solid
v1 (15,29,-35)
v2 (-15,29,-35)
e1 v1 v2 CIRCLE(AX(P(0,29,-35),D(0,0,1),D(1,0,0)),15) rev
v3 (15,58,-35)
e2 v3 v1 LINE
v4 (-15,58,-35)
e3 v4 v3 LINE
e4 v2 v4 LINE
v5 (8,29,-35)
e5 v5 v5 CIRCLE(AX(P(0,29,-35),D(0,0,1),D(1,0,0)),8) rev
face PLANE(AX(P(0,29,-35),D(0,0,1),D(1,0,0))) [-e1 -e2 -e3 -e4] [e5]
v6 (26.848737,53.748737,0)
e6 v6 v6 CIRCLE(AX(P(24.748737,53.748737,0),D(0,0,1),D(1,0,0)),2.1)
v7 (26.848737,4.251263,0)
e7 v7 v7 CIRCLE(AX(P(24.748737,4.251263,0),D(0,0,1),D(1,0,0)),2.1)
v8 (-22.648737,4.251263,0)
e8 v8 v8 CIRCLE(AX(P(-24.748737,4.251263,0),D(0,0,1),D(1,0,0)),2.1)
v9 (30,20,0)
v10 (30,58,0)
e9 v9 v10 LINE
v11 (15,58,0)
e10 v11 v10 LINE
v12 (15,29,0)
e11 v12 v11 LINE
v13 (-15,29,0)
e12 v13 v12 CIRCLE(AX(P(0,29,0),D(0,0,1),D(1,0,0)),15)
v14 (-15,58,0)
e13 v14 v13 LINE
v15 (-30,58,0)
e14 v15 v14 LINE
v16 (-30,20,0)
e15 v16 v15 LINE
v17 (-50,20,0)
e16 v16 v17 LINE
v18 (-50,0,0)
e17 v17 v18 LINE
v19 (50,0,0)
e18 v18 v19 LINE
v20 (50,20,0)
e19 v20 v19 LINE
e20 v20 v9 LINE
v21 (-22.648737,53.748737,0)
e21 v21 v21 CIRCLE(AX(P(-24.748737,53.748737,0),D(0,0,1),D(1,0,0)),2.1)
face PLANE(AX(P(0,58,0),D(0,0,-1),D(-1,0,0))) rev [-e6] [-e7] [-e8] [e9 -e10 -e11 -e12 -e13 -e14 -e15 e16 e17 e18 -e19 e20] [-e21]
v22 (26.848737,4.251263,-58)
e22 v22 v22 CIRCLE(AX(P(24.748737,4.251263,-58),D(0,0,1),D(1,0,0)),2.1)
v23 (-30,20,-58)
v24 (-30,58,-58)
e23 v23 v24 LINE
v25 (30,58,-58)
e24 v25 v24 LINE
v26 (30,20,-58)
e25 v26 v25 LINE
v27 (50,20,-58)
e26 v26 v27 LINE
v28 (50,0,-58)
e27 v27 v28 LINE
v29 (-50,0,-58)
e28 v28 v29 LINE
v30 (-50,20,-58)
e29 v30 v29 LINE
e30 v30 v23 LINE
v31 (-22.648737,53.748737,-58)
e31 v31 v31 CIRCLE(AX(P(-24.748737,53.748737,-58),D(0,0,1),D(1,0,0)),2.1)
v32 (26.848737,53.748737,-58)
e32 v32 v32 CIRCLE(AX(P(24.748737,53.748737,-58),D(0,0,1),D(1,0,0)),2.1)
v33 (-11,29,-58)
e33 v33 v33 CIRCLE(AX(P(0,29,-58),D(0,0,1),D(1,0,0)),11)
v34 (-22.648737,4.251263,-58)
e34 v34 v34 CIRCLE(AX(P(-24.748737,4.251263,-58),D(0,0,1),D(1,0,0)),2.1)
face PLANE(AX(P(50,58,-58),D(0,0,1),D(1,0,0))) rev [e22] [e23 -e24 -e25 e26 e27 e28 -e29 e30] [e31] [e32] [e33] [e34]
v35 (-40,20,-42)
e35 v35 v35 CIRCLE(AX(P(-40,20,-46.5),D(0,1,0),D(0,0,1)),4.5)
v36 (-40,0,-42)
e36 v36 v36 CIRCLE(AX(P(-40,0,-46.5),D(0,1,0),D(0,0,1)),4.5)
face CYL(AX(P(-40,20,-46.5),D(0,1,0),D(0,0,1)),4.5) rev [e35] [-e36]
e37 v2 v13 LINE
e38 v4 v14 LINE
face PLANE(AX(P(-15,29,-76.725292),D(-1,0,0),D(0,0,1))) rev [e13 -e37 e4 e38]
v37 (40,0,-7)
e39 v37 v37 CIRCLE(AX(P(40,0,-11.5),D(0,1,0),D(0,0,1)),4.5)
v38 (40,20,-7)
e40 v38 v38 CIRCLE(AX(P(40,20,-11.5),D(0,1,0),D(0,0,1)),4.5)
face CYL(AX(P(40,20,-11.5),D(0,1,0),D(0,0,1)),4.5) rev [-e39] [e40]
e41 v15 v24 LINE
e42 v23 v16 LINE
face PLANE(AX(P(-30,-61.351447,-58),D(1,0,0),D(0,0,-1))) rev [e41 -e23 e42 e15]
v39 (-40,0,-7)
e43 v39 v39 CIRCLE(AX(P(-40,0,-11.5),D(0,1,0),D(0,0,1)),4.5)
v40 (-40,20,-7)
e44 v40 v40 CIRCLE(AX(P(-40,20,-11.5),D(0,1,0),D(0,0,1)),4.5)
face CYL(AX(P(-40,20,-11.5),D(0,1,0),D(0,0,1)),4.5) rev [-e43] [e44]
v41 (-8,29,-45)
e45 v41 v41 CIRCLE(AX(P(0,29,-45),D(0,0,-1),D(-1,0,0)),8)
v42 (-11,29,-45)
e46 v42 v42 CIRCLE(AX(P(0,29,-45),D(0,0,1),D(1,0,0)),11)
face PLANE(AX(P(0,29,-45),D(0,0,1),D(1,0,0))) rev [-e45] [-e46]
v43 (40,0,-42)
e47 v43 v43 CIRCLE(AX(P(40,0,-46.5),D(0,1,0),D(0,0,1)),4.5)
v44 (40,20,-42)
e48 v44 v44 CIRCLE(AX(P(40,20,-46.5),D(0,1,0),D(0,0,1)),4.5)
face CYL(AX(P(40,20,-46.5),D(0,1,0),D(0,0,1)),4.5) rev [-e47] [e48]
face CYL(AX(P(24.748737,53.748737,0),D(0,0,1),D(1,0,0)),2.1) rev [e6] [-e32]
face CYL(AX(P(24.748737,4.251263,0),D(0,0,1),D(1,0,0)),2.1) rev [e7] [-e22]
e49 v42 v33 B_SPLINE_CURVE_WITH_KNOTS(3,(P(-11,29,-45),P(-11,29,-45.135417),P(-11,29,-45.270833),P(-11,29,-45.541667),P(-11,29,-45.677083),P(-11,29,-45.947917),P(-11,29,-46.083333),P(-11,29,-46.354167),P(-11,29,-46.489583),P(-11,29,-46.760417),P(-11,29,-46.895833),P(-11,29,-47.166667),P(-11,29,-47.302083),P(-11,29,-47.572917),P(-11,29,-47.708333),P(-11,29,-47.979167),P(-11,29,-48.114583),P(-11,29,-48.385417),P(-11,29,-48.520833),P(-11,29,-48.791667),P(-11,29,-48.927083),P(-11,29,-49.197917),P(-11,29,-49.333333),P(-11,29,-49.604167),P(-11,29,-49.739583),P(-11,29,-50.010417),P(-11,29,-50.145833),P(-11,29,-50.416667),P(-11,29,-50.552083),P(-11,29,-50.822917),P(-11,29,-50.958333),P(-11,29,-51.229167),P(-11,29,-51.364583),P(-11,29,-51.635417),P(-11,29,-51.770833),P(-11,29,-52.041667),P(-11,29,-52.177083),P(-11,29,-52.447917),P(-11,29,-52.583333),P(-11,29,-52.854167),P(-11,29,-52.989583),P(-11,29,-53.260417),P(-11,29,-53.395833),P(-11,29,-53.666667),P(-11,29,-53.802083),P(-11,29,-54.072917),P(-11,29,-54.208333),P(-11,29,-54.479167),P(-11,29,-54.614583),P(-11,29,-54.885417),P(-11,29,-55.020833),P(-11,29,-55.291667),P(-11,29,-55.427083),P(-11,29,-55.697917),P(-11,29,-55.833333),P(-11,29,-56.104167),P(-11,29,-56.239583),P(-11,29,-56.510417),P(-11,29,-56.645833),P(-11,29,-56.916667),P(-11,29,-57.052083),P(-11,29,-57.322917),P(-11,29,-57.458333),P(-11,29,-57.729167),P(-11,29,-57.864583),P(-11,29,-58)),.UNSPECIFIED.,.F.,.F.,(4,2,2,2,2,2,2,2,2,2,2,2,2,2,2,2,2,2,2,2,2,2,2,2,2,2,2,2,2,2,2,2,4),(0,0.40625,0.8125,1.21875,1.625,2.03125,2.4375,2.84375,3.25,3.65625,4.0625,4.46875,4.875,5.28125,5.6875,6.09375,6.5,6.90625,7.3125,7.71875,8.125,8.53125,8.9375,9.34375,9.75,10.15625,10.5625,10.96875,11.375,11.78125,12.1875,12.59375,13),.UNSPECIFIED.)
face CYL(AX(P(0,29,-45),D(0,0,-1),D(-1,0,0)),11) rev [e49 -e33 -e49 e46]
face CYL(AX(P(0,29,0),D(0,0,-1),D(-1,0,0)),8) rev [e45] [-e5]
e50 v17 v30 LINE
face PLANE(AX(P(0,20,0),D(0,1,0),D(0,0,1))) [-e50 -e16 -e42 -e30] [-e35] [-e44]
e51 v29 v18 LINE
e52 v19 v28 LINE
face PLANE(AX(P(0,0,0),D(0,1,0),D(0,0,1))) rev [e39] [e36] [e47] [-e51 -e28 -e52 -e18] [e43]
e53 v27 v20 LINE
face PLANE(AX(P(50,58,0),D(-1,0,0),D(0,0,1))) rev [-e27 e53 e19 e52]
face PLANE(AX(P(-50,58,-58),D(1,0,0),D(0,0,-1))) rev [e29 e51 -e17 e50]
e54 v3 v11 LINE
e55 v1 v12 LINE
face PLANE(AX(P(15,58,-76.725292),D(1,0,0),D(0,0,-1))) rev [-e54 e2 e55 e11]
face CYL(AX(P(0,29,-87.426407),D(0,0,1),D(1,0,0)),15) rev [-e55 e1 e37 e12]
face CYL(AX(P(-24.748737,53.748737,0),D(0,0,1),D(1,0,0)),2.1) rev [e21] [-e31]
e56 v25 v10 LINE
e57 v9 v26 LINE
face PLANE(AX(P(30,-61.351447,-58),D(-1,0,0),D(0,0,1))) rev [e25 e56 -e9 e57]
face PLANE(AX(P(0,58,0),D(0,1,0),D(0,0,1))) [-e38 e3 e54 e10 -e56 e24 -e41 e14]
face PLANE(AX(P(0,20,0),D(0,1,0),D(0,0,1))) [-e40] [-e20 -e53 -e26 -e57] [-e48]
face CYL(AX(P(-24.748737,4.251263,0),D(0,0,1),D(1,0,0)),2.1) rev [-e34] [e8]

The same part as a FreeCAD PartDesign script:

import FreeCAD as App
import Part
import Sketcher

V = App.Vector
Q = App.Units.Quantity


def add_polygon(sketch, points):
    """Adds a closed chain of lines whose ends are joined by coincident constraints."""
    first, n = sketch.GeometryCount, len(points)
    for a, b in zip(points, points[1:] + points[:1]):
        sketch.addGeometry(Part.LineSegment(App.Vector(*a, 0), App.Vector(*b, 0)), False)
    for i in range(n):
        sketch.addConstraint(Sketcher.Constraint("Coincident", first + i, 2, first + (i + 1) % n, 1))

doc = App.newDocument("Part")
body = doc.addObject("PartDesign::Body", "Body")

# Sketch on XZ plane
sketch1 = body.newObject("Sketcher::SketchObject", "Sketch")
sketch1.AttachmentSupport = (doc.getObject("XZ_Plane"), [""])
sketch1.MapMode = "FlatFace"
add_polygon(sketch1, [(-50, 0), (50, 0), (50, -58), (-50, -58)])  # lines 0-3
sketch1.addConstraint([
    Sketcher.Constraint("Horizontal", 0),
    Sketcher.Constraint("Vertical", 1),
    Sketcher.Constraint("Horizontal", 2),
    Sketcher.Constraint("Vertical", 3),
    Sketcher.Constraint("Symmetric", 0, 2, 3, 2, -1, 1),
    Sketcher.Constraint("DistanceX", 0, 1, 0, 2, Q("100 mm")),
    Sketcher.Constraint("DistanceY", 1, 2, 1, 1, Q("58 mm")),
])
pad1 = body.newObject("PartDesign::Pad", "Pad")
pad1.Profile = sketch1
pad1.Length = 58
pad1.Reversed = True

# Sketch on XY plane
sketch2 = body.newObject("Sketcher::SketchObject", "Sketch001")
sketch2.AttachmentSupport = (doc.getObject("XY_Plane"), [""])
sketch2.MapMode = "FlatFace"
sketch2.AttachmentOffset = App.Placement(V(0, 0, -58), App.Rotation())
sketch2.addGeometry(Part.Circle(V(0, 29, 0), V(0, 0, 1), 11), False)
sketch2.addConstraint([
    Sketcher.Constraint("PointOnObject", 0, 3, -2),
    Sketcher.Constraint("Diameter", 0, Q("22 mm")),
    Sketcher.Constraint("DistanceY", -1, 1, 0, 3, Q("29 mm")),
])
pocket1 = body.newObject("PartDesign::Pocket", "Pocket")
pocket1.Profile = sketch2
pocket1.Length = 13
pocket1.Reversed = True

# Sketch on XY plane
sketch3 = body.newObject("Sketcher::SketchObject", "Sketch002")
sketch3.AttachmentSupport = (doc.getObject("XY_Plane"), [""])
sketch3.MapMode = "FlatFace"
sketch3.AttachmentOffset = App.Placement(V(0, 0, -45), App.Rotation())
sketch3.addGeometry(Part.Circle(V(0, 29, 0), V(0, 0, 1), 8), False)
sketch3.addConstraint([
    Sketcher.Constraint("PointOnObject", 0, 3, -2),
    Sketcher.Constraint("Diameter", 0, Q("16 mm")),
    Sketcher.Constraint("DistanceY", -1, 1, 0, 3, Q("29 mm")),
])
pocket2 = body.newObject("PartDesign::Pocket", "Pocket001")
pocket2.Profile = sketch3
pocket2.Type = "ThroughAll"
pocket2.Reversed = True

# Sketch on XY plane
sketch4 = body.newObject("Sketcher::SketchObject", "Sketch003")
sketch4.AttachmentSupport = (doc.getObject("XY_Plane"), [""])
sketch4.MapMode = "FlatFace"
sketch4.addGeometry(Part.Circle(V(0, 29, 0), V(0, 0, 1), 15), False)
sketch4.addConstraint([
    Sketcher.Constraint("PointOnObject", 0, 3, -2),
    Sketcher.Constraint("Diameter", 0, Q("30 mm")),
    Sketcher.Constraint("DistanceY", -1, 1, 0, 3, Q("29 mm")),
])
pocket3 = body.newObject("PartDesign::Pocket", "Pocket002")
pocket3.Profile = sketch4
pocket3.Length = 35

# Sketch on XY plane
sketch5 = body.newObject("Sketcher::SketchObject", "Sketch004")
sketch5.AttachmentSupport = (doc.getObject("XY_Plane"), [""])
sketch5.MapMode = "FlatFace"
add_polygon(sketch5, [(-15, 58), (-15, 29), (15, 29), (15, 58)])  # lines 0-3
sketch5.addConstraint([
    Sketcher.Constraint("Vertical", 0),
    Sketcher.Constraint("Horizontal", 1),
    Sketcher.Constraint("Vertical", 2),
    Sketcher.Constraint("Horizontal", 3),
    Sketcher.Constraint("DistanceX", 1, 1, 1, 2, Q("30 mm")),
    Sketcher.Constraint("DistanceY", 0, 2, 0, 1, Q("29 mm")),
    Sketcher.Constraint("DistanceX", 0, 2, -1, 1, Q("15 mm")),
    Sketcher.Constraint("DistanceY", -1, 1, 0, 2, Q("29 mm")),
])
pocket4 = body.newObject("PartDesign::Pocket", "Pocket003")
pocket4.Profile = sketch5
pocket4.Length = 35

# Sketch on XY plane
sketch6 = body.newObject("Sketcher::SketchObject", "Sketch005")
sketch6.AttachmentSupport = (doc.getObject("XY_Plane"), [""])
sketch6.MapMode = "FlatFace"
sketch6.addGeometry([
    Part.Circle(V(24.748737, 53.748737, 0), V(0, 0, 1), 2.1),
    Part.Circle(V(-24.748737, 53.748737, 0), V(0, 0, 1), 2.1),
    Part.Circle(V(-24.748737, 4.251263, 0), V(0, 0, 1), 2.1),
    Part.Circle(V(24.748737, 4.251263, 0), V(0, 0, 1), 2.1),
], False)
sketch6.addConstraint([
    Sketcher.Constraint("Equal", 0, 1),
    Sketcher.Constraint("Equal", 1, 2),
    Sketcher.Constraint("Equal", 2, 3),
    Sketcher.Constraint("Symmetric", 0, 3, 1, 3, -2),
    Sketcher.Constraint("Symmetric", 2, 3, 3, 3, -2),
    Sketcher.Constraint("Vertical", 1, 3, 2, 3),
    Sketcher.Constraint("Diameter", 0, Q("4.2 mm")),
    Sketcher.Constraint("DistanceX", -1, 1, 0, 3, Q("24.748737 mm")),
    Sketcher.Constraint("DistanceY", -1, 1, 0, 3, Q("53.748737 mm")),
    Sketcher.Constraint("DistanceY", -1, 1, 2, 3, Q("4.251263 mm")),
])
doc.recompute()
hole = body.newObject("PartDesign::Hole", "Hole")
hole.Profile = sketch6
hole.ThreadType = "None"
hole.Diameter = 4.2
hole.DepthType = "ThroughAll"

# Sketch on XZ plane
sketch7 = body.newObject("Sketcher::SketchObject", "Sketch006")
sketch7.AttachmentSupport = (doc.getObject("XZ_Plane"), [""])
sketch7.MapMode = "FlatFace"
sketch7.AttachmentOffset = App.Placement(V(0, 0, -58), App.Rotation())
add_polygon(sketch7, [(-50, -58), (-50, 0), (-30, 0), (-30, -58)])  # lines 0-3
add_polygon(sketch7, [(30, -58), (30, 0), (50, 0), (50, -58)])  # lines 4-7
sketch7.addConstraint([
    Sketcher.Constraint("Vertical", 0),
    Sketcher.Constraint("Horizontal", 1),
    Sketcher.Constraint("Vertical", 2),
    Sketcher.Constraint("Horizontal", 3),
    Sketcher.Constraint("Vertical", 4),
    Sketcher.Constraint("Horizontal", 5),
    Sketcher.Constraint("Vertical", 6),
    Sketcher.Constraint("Horizontal", 7),
    Sketcher.Constraint("Symmetric", 1, 2, 4, 2, -1, 1),
    Sketcher.Constraint("Symmetric", 0, 2, 5, 2, -2),
    Sketcher.Constraint("Horizontal", 3, 2, 6, 2),
    Sketcher.Constraint("DistanceX", 1, 1, 1, 2, Q("20 mm")),
    Sketcher.Constraint("DistanceY", 0, 1, 0, 2, Q("58 mm")),
    Sketcher.Constraint("DistanceX", 0, 2, -1, 1, Q("50 mm")),
])
pocket5 = body.newObject("PartDesign::Pocket", "Pocket004")
pocket5.Profile = sketch7
pocket5.Length = 38
pocket5.Reversed = True

# Sketch on XZ plane
sketch8 = body.newObject("Sketcher::SketchObject", "Sketch007")
sketch8.AttachmentSupport = (doc.getObject("XZ_Plane"), [""])
sketch8.MapMode = "FlatFace"
sketch8.AttachmentOffset = App.Placement(V(0, 0, -20), App.Rotation())
sketch8.addGeometry([
    Part.Circle(V(-40, -46.5, 0), V(0, 0, 1), 4.5),  # 0
    Part.Circle(V(-40, -11.5, 0), V(0, 0, 1), 4.5),  # 1
    Part.Circle(V(40, -46.5, 0), V(0, 0, 1), 4.5),  # 2
    Part.Circle(V(40, -11.5, 0), V(0, 0, 1), 4.5),  # 3
    Part.Circle(V(-40, -563.414464, 0), V(0, 0, 1), 4.5),  # 4
    Part.Circle(V(40, -563.414464, 0), V(0, 0, 1), 4.5),  # 5
], False)
sketch8.addConstraint([
    Sketcher.Constraint("Equal", 0, 1),
    Sketcher.Constraint("Equal", 1, 2),
    Sketcher.Constraint("Equal", 2, 3),
    Sketcher.Constraint("Equal", 3, 4),
    Sketcher.Constraint("Equal", 4, 5),
    Sketcher.Constraint("Symmetric", 0, 3, 2, 3, -2),
    Sketcher.Constraint("Symmetric", 1, 3, 3, 3, -2),
    Sketcher.Constraint("Symmetric", 4, 3, 5, 3, -2),
    Sketcher.Constraint("Vertical", 0, 3, 1, 3),
    Sketcher.Constraint("Vertical", 1, 3, 4, 3),
    Sketcher.Constraint("Diameter", 0, Q("9 mm")),
    Sketcher.Constraint("DistanceX", 0, 3, -1, 1, Q("40 mm")),
    Sketcher.Constraint("DistanceY", 0, 3, 1, 3, Q("35 mm")),
    Sketcher.Constraint("DistanceY", 0, 3, -1, 1, Q("46.5 mm")),
    Sketcher.Constraint("DistanceY", 4, 3, -1, 1, Q("563.414464 mm")),
])
doc.recompute()
hole2 = body.newObject("PartDesign::Hole", "Hole001")
hole2.Profile = sketch8
hole2.ThreadType = "None"
hole2.Diameter = 9
hole2.DepthType = "ThroughAll"
hole2.Reversed = True

doc.recompute()
